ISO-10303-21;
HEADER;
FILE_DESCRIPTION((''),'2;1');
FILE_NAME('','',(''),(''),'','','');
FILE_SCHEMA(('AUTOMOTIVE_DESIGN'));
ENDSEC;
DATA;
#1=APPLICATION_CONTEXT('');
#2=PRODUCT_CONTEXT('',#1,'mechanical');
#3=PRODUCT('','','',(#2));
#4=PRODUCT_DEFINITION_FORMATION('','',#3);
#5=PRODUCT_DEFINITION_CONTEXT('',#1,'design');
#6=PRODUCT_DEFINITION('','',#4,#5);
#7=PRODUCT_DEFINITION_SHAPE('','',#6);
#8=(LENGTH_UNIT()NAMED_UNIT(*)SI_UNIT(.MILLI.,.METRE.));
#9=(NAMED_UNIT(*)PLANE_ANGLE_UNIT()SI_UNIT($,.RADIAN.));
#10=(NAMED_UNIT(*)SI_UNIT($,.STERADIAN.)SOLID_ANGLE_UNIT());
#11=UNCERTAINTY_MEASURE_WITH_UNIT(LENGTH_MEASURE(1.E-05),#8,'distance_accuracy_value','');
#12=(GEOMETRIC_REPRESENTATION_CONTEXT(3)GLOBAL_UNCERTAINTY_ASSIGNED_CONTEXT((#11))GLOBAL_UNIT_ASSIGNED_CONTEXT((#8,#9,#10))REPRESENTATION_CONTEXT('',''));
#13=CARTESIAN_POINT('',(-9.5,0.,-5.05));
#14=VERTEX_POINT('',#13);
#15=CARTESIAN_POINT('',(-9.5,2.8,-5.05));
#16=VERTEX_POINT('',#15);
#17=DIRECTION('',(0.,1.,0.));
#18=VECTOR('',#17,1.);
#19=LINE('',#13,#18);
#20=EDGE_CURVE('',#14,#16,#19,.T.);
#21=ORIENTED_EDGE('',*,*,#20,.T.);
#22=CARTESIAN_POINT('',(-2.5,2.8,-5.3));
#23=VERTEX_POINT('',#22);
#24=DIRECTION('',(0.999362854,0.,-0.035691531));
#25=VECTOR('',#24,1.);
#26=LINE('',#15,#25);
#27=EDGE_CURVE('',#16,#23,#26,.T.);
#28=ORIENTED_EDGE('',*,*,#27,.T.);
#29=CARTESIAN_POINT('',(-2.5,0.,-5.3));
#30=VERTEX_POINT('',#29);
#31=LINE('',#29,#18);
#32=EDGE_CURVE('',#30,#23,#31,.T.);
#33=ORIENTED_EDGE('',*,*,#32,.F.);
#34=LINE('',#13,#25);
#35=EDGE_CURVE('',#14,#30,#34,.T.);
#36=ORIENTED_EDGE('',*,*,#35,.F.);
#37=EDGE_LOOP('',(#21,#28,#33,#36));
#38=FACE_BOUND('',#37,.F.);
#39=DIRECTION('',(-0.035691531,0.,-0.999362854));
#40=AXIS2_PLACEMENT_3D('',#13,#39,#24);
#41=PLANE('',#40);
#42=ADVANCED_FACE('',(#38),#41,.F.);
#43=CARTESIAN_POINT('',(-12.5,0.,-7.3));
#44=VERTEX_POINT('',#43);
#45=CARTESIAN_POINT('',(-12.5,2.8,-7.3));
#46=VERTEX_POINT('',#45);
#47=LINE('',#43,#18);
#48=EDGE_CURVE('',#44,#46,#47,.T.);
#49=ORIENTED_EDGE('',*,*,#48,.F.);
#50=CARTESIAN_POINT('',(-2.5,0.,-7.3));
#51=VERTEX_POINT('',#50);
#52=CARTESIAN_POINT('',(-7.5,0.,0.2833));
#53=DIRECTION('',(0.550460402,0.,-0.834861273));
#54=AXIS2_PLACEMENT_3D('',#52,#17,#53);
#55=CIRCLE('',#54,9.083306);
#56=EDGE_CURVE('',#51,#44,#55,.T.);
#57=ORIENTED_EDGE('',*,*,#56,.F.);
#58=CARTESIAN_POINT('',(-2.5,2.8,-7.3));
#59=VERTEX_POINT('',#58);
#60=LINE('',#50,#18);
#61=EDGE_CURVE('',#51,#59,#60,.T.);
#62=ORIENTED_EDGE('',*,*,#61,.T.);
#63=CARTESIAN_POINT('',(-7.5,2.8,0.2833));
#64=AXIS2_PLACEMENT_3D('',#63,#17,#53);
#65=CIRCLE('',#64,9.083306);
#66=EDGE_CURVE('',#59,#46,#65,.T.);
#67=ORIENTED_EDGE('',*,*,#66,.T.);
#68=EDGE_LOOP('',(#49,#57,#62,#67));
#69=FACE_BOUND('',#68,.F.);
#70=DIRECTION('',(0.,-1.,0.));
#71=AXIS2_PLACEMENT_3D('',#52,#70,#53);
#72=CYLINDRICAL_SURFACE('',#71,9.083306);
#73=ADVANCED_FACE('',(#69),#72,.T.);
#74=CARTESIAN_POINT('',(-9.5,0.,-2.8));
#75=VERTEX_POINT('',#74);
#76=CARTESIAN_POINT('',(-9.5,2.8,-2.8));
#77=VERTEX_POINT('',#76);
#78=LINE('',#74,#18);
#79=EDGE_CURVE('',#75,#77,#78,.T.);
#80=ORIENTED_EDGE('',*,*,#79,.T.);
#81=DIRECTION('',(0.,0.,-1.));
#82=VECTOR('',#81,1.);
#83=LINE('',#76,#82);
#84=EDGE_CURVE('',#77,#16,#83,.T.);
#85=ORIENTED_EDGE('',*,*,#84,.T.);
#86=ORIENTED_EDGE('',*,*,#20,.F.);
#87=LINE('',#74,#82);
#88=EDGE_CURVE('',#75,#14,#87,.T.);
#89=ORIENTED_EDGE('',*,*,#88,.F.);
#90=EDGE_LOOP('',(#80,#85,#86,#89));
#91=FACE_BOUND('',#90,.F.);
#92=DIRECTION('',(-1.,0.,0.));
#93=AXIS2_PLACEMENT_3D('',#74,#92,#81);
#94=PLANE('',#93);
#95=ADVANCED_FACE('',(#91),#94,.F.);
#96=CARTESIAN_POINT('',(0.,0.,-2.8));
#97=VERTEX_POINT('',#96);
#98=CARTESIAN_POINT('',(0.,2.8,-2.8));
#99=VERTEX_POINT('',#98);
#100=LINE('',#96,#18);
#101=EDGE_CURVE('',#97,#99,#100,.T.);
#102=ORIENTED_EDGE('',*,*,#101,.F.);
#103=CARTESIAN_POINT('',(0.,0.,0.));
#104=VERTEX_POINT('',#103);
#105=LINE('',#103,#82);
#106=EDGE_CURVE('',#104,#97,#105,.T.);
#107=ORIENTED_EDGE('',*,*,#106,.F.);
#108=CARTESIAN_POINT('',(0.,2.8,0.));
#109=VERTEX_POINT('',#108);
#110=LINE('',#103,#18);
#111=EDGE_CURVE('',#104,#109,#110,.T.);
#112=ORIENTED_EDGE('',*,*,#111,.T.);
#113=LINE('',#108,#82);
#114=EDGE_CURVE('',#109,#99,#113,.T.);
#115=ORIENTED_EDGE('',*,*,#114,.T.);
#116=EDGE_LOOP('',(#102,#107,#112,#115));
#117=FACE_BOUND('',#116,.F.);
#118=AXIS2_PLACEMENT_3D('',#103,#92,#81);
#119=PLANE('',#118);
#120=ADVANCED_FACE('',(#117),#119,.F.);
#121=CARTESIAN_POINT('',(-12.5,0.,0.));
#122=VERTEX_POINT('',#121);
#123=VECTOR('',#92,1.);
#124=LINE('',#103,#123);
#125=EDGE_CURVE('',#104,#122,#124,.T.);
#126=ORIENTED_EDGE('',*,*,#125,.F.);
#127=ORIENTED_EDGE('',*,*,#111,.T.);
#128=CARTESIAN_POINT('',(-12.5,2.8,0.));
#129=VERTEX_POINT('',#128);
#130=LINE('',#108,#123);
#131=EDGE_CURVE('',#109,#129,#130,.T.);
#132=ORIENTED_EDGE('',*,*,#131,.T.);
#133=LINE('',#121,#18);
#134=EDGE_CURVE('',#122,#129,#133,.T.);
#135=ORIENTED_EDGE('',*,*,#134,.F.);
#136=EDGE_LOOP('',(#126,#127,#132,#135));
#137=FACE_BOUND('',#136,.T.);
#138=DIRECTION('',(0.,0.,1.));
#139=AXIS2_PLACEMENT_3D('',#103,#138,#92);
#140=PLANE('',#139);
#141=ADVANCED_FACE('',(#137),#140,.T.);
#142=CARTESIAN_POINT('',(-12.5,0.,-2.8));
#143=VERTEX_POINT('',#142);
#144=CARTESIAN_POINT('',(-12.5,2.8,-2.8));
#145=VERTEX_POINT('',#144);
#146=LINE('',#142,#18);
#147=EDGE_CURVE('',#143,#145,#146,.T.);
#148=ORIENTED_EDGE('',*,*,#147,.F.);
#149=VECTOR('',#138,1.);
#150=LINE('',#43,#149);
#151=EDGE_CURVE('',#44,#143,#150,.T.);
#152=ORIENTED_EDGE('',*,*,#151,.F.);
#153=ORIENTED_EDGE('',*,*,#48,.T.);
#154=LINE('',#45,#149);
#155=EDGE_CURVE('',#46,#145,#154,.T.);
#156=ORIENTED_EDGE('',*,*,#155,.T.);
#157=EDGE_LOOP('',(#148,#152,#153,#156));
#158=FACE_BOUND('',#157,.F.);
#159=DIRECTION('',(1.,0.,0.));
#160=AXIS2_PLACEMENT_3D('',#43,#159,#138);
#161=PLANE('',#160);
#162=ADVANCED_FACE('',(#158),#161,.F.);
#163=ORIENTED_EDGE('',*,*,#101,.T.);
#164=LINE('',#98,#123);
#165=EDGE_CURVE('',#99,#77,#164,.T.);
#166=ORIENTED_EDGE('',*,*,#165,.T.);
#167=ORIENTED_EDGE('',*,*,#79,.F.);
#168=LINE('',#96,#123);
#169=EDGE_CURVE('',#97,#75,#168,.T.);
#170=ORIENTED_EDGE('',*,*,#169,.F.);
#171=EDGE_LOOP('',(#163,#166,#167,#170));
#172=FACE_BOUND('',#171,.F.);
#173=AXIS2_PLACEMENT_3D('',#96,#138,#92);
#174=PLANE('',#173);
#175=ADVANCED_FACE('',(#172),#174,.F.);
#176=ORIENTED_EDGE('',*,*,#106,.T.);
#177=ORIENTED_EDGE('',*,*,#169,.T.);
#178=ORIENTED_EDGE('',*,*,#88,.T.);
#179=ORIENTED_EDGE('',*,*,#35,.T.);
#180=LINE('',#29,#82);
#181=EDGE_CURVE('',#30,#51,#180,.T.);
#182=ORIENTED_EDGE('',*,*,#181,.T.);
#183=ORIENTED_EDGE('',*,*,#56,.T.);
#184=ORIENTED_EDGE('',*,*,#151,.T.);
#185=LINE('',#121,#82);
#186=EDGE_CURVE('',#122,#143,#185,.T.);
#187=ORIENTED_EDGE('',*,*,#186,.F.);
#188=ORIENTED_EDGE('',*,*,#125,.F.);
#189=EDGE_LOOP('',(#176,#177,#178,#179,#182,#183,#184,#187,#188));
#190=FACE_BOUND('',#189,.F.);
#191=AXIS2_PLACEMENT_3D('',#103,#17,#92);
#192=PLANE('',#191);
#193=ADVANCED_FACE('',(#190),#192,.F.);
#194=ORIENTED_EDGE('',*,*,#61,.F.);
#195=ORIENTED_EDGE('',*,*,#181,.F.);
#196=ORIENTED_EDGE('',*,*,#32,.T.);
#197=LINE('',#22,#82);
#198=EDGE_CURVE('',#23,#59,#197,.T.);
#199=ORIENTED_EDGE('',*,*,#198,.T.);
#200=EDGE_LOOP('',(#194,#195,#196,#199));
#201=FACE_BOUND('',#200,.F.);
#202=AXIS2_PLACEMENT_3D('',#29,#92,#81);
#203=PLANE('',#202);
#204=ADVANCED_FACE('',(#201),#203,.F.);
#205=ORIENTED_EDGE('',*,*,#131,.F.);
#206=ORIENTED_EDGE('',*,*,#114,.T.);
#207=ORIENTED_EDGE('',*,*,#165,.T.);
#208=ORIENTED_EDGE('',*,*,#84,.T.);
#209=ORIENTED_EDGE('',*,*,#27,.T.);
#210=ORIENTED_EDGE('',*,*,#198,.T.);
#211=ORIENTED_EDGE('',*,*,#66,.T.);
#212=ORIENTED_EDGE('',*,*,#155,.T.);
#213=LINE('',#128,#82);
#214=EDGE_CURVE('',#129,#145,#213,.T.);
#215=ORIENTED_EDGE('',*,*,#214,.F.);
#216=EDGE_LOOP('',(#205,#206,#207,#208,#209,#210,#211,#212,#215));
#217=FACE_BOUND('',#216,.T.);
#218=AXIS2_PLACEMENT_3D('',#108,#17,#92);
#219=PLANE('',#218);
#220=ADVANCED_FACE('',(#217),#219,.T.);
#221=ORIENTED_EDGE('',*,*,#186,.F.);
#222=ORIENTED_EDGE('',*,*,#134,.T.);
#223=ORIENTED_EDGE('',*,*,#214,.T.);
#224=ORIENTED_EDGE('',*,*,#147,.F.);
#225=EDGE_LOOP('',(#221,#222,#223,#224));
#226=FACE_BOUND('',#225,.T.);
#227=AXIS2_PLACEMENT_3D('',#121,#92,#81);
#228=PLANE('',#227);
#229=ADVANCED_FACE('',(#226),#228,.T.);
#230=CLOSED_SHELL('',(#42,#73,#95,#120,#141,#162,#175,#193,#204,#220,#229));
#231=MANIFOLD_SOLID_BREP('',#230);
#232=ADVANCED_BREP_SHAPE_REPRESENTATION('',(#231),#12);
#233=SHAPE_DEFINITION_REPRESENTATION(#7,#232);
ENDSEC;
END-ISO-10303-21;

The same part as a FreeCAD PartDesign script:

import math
import FreeCAD as App
import Part
import Sketcher
from FreeCAD import Vector

doc = App.newDocument("Part")
params = doc.addObject("Spreadsheet::Sheet", "Params")
for row, (alias, value) in enumerate([
    ("sketch1_height", "2 mm"),
    ("sketch1_width", "12.5 mm"),
    ("sketch1_width2", "9.5 mm"),
    ("sketch1_height2", "2.8 mm"),
    ("sketch1_height3", "2.25 mm"),
    ("pad1_length", "2.8 mm"),
], start=1):
    params.set(f"A{row}", alias)
    params.set(f"B{row}", "=" + value)
    params.setAlias(f"B{row}", alias)

body = doc.addObject("PartDesign::Body", "Body")

sketch1 = body.newObject("Sketcher::SketchObject", "Sketch")
sketch1.AttachmentSupport = (doc.getObject("XZ_Plane"), [""])
sketch1.MapMode = "FlatFace"
sketch1.addGeometry(Part.LineSegment(Vector(-12.5, 0, 0), Vector(0, 0, 0)), False)
sketch1.addGeometry(Part.LineSegment(Vector(0, 0, 0), Vector(0, -2.8, 0)), False)
sketch1.addGeometry(Part.LineSegment(Vector(0, -2.8, 0), Vector(-9.5, -2.8, 0)), False)
sketch1.addGeometry(Part.LineSegment(Vector(-9.5, -2.8, 0), Vector(-9.5, -5, 0)), False)
sketch1.addGeometry(Part.LineSegment(Vector(-9.5, -5, 0), Vector(-2.5, -5.3, 0)), False)
sketch1.addGeometry(Part.LineSegment(Vector(-2.5, -5.3, 0), Vector(-2.5, -7.3, 0)), False)
sketch1.addGeometry(Part.ArcOfCircle(Part.Circle(Vector(-7.5, 0.3, 0), Vector(0, 0, 1), 9.1), math.radians(-123), math.radians(-57)), False)
sketch1.addGeometry(Part.LineSegment(Vector(-12.5, -7.3, 0), Vector(-12.5, 0, 0)), False)
sketch1.addConstraint(Sketcher.Constraint("Coincident", 0, 2, 1, 1))
sketch1.addConstraint(Sketcher.Constraint("Coincident", 1, 2, 2, 1))
sketch1.addConstraint(Sketcher.Constraint("Coincident", 2, 2, 3, 1))
sketch1.addConstraint(Sketcher.Constraint("Coincident", 3, 2, 4, 1))
sketch1.addConstraint(Sketcher.Constraint("Coincident", 4, 2, 5, 1))
sketch1.addConstraint(Sketcher.Constraint("Coincident", 5, 2, 6, 2))
sketch1.addConstraint(Sketcher.Constraint("Coincident", 6, 1, 7, 1))
sketch1.addConstraint(Sketcher.Constraint("Coincident", 7, 2, 0, 1))
sketch1.addConstraint(Sketcher.Constraint("Horizontal", 0))
sketch1.addConstraint(Sketcher.Constraint("Vertical", 1))
sketch1.addConstraint(Sketcher.Constraint("Horizontal", 2))
sketch1.addConstraint(Sketcher.Constraint("Vertical", 3))
sketch1.addConstraint(Sketcher.Constraint("Vertical", 5))
sketch1.addConstraint(Sketcher.Constraint("Vertical", 7))
sketch1.addConstraint(Sketcher.Constraint("Coincident", 0, 2, -1, 1))
sketch1.addConstraint(Sketcher.Constraint("Horizontal", 5, 2, 6, 1))
sketch1.addConstraint(Sketcher.Constraint("DistanceY", 5, 2, 5, 1, 2.0))
sketch1.addConstraint(Sketcher.Constraint("DistanceX", 0, 1, 0, 2, 12.5))
sketch1.addConstraint(Sketcher.Constraint("DistanceX", 2, 2, 2, 1, 9.5))
sketch1.addConstraint(Sketcher.Constraint("DistanceY", 1, 2, 1, 1, 2.8))
sketch1.addConstraint(Sketcher.Constraint("DistanceX", 2, 2, 6, 3, 2.0))
sketch1.addConstraint(Sketcher.Constraint("DistanceY", 3, 2, 3, 1, 2.25))
sketch1.addConstraint(Sketcher.Constraint("DistanceY", 5, 2, 1, 2, 4.5))
sketch1.addConstraint(Sketcher.Constraint("Radius", 6, 9.0833))
sketch1.setExpression("Constraints[16]", "Params.sketch1_height")
sketch1.setExpression("Constraints[17]", "Params.sketch1_width")
sketch1.setExpression("Constraints[18]", "Params.sketch1_width2")
sketch1.setExpression("Constraints[19]", "Params.sketch1_height2")
sketch1.setExpression("Constraints[21]", "Params.sketch1_height3")
pad1 = body.newObject("PartDesign::Pad", "Pad")
pad1.Profile = sketch1
pad1.setExpression("Length", "Params.pad1_length")
pad1.Reversed = True

doc.recompute()
